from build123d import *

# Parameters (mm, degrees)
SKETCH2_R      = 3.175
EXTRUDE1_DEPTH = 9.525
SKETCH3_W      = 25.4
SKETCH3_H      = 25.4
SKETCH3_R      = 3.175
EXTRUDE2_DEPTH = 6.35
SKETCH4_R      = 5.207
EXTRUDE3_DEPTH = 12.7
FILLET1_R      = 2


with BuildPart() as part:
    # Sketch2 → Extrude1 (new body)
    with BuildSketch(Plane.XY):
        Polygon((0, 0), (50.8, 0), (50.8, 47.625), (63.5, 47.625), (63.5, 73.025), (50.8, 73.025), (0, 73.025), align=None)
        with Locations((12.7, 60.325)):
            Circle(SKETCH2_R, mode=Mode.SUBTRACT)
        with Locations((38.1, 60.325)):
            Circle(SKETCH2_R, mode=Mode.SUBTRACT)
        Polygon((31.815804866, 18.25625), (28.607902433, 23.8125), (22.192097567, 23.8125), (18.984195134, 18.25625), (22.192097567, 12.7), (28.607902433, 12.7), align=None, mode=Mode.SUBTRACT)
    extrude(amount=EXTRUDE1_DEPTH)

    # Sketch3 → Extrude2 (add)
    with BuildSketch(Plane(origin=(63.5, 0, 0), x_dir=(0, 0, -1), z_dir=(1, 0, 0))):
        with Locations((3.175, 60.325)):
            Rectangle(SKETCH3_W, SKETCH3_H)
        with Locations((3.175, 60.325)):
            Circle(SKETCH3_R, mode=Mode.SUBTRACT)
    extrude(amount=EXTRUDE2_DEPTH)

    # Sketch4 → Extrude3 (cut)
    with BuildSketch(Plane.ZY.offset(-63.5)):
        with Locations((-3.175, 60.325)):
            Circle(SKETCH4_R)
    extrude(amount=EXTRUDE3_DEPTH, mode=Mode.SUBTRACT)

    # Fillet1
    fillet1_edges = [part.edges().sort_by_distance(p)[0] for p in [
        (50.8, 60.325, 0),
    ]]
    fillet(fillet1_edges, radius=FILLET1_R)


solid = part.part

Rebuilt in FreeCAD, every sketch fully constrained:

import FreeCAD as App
import Part
import Sketcher
Q = App.Units.Quantity


def edges_at(feature, points):
    """Names of the edges that pass closest to the given points."""
    edges = feature.Shape.Edges
    near = lambda p: min(range(len(edges)), key=lambda i: edges[i].distToShape(Part.Vertex(*p))[0])
    return sorted({f"Edge{near(p) + 1}" for p in points})


def add_polygon(sketch, points):
    """Adds a closed chain of lines whose ends are joined by coincident constraints."""
    first, n = sketch.GeometryCount, len(points)
    for a, b in zip(points, points[1:] + points[:1]):
        sketch.addGeometry(Part.LineSegment(App.Vector(*a, 0), App.Vector(*b, 0)), False)
    for i in range(n):
        sketch.addConstraint(Sketcher.Constraint("Coincident", first + i, 2, first + (i + 1) % n, 1))

doc = App.newDocument("Part")
body = doc.addObject("PartDesign::Body", "Body")

# Sketch on XY plane
sketch1 = body.newObject("Sketcher::SketchObject", "Sketch")
sketch1.AttachmentSupport = (doc.getObject("XY_Plane"), [""])
sketch1.MapMode = "FlatFace"
add_polygon(sketch1, [(0, 0), (50.8, 0), (50.8, 47.6), (63.5, 47.6), (63.5, 73), (0, 73)])  # lines 0-5
add_polygon(sketch1, [(28.6, 23.8), (31.8, 18.3), (28.6, 12.7), (22.2, 12.7), (19, 18.3), (22.2, 23.8)])  # lines 6-11
sketch1.addGeometry(Part.Circle(App.Vector(12.7, 60.3, 0), App.Vector(0, 0, 1), 3.2), False)  # 12
sketch1.addGeometry(Part.Circle(App.Vector(38.1, 60.3, 0), App.Vector(0, 0, 1), 3.2), False)  # 13
sketch1.addConstraint([
    Sketcher.Constraint("Horizontal", 0),
    Sketcher.Constraint("Vertical", 1),
    Sketcher.Constraint("Horizontal", 2),
    Sketcher.Constraint("Vertical", 3),
    Sketcher.Constraint("Horizontal", 4),
    Sketcher.Constraint("Vertical", 5),
    Sketcher.Constraint("Horizontal", 8),
    Sketcher.Constraint("Horizontal", 11),
    Sketcher.Constraint("Coincident", 5, 2, -1, 1),
    Sketcher.Constraint("Equal", 12, 13),
    Sketcher.Constraint("Parallel", 6, 9),
    Sketcher.Constraint("Parallel", 7, 10),
    Sketcher.Constraint("Horizontal", 12, 3, 13, 3),
    Sketcher.Constraint("Horizontal", 6, 2, 9, 2),
    Sketcher.Constraint("Vertical", 8, 2, 10, 2),
    Sketcher.Constraint("Vertical", 7, 2, 11, 2),
    Sketcher.Constraint("Diameter", 12, Q("0.25 in")),
    Sketcher.Constraint("DistanceX", 0, 1, 0, 2, Q("2 in")),
    Sketcher.Constraint("DistanceY", 3, 1, 3, 2, Q("1 in")),
    Sketcher.Constraint("DistanceX", 2, 1, 2, 2, Q("0.5 in")),
    Sketcher.Constraint("Angle", 6, Q("-60 deg")),
    Sketcher.Constraint("DistanceX", 12, 3, 13, 3, Q("1 in")),
    Sketcher.Constraint("DistanceX", 13, 3, 2, 2, Q("1 in")),
    Sketcher.Constraint("DistanceY", -1, 1, 7, 2, Q("0.5 in")),
    Sketcher.Constraint("DistanceY", 1, 2, 13, 3, Q("0.5 in")),
    Sketcher.Constraint("DistanceY", 1, 1, 1, 2, Q("1.875 in")),
    Sketcher.Constraint("DistanceY", -1, 1, 6, 2, Q("0.71875 in")),
    Sketcher.Constraint("DistanceX", 8, 2, 8, 1, 6.415805),
    Sketcher.Constraint("DistanceX", -1, 1, 6, 2, 31.815805),
])
pad1 = body.newObject("PartDesign::Pad", "Pad")
pad1.Profile = sketch1
pad1.Length = Q("0.375 in")

# Sketch on YZ plane
sketch2 = body.newObject("Sketcher::SketchObject", "Sketch001")
sketch2.AttachmentSupport = (doc.getObject("YZ_Plane"), [""])
sketch2.MapMode = "FlatFace"
sketch2.AttachmentOffset = App.Placement(App.Vector(0, 0, 2.5 * 25.4), App.Rotation())
add_polygon(sketch2, [(73, 9.5), (47.6, 9.5), (47.6, -15.9), (73, -15.9)])  # lines 0-3
sketch2.addGeometry(Part.Circle(App.Vector(60.3, -3.2, 0), App.Vector(0, 0, 1), 3.2), False)  # 4
sketch2.addConstraint([
    Sketcher.Constraint("Horizontal", 0),
    Sketcher.Constraint("Vertical", 1),
    Sketcher.Constraint("Horizontal", 2),
    Sketcher.Constraint("Vertical", 3),
    Sketcher.Constraint("Equal", 2, 1),
    Sketcher.Constraint("Diameter", 4, Q("0.25 in")),
    Sketcher.Constraint("DistanceX", 0, 2, 0, 1, Q("1 in")),
    Sketcher.Constraint("DistanceX", 0, 2, 4, 3, Q("0.5 in")),
    Sketcher.Constraint("DistanceY", 4, 3, 0, 2, Q("0.5 in")),
    Sketcher.Constraint("DistanceX", -1, 1, 4, 3, Q("2.375 in")),
    Sketcher.Constraint("DistanceY", 4, 3, -1, 1, Q("0.125 in")),
])
pad2 = body.newObject("PartDesign::Pad", "Pad001")
pad2.Profile = sketch2
pad2.Length = Q("0.25 in")

# Sketch on YZ plane
sketch3 = body.newObject("Sketcher::SketchObject", "Sketch002")
sketch3.AttachmentSupport = (doc.getObject("YZ_Plane"), [""])
sketch3.MapMode = "FlatFace"
sketch3.AttachmentOffset = App.Placement(App.Vector(0, 0, 2.5 * 25.4), App.Rotation())
sketch3.addGeometry(Part.Circle(App.Vector(60, -3, 0), App.Vector(0, 0, 1), 5), False)
sketch3.addConstraint([
    Sketcher.Constraint("Diameter", 0, Q("0.41 in")),
    Sketcher.Constraint("DistanceX", -1, 1, 0, 3, Q("2.375 in")),
    Sketcher.Constraint("DistanceY", 0, 3, -1, 1, Q("0.125 in")),
])
pocket1 = body.newObject("PartDesign::Pocket", "Pocket")
pocket1.Profile = sketch3
pocket1.Length = Q("0.5 in")
doc.recompute()

fillet = body.newObject("PartDesign::Fillet", "Fillet")
fillet.Base = (pocket1, edges_at(pocket1, [(50.8, 60.325, 0)]))
fillet.Radius = 2

doc.recompute()
